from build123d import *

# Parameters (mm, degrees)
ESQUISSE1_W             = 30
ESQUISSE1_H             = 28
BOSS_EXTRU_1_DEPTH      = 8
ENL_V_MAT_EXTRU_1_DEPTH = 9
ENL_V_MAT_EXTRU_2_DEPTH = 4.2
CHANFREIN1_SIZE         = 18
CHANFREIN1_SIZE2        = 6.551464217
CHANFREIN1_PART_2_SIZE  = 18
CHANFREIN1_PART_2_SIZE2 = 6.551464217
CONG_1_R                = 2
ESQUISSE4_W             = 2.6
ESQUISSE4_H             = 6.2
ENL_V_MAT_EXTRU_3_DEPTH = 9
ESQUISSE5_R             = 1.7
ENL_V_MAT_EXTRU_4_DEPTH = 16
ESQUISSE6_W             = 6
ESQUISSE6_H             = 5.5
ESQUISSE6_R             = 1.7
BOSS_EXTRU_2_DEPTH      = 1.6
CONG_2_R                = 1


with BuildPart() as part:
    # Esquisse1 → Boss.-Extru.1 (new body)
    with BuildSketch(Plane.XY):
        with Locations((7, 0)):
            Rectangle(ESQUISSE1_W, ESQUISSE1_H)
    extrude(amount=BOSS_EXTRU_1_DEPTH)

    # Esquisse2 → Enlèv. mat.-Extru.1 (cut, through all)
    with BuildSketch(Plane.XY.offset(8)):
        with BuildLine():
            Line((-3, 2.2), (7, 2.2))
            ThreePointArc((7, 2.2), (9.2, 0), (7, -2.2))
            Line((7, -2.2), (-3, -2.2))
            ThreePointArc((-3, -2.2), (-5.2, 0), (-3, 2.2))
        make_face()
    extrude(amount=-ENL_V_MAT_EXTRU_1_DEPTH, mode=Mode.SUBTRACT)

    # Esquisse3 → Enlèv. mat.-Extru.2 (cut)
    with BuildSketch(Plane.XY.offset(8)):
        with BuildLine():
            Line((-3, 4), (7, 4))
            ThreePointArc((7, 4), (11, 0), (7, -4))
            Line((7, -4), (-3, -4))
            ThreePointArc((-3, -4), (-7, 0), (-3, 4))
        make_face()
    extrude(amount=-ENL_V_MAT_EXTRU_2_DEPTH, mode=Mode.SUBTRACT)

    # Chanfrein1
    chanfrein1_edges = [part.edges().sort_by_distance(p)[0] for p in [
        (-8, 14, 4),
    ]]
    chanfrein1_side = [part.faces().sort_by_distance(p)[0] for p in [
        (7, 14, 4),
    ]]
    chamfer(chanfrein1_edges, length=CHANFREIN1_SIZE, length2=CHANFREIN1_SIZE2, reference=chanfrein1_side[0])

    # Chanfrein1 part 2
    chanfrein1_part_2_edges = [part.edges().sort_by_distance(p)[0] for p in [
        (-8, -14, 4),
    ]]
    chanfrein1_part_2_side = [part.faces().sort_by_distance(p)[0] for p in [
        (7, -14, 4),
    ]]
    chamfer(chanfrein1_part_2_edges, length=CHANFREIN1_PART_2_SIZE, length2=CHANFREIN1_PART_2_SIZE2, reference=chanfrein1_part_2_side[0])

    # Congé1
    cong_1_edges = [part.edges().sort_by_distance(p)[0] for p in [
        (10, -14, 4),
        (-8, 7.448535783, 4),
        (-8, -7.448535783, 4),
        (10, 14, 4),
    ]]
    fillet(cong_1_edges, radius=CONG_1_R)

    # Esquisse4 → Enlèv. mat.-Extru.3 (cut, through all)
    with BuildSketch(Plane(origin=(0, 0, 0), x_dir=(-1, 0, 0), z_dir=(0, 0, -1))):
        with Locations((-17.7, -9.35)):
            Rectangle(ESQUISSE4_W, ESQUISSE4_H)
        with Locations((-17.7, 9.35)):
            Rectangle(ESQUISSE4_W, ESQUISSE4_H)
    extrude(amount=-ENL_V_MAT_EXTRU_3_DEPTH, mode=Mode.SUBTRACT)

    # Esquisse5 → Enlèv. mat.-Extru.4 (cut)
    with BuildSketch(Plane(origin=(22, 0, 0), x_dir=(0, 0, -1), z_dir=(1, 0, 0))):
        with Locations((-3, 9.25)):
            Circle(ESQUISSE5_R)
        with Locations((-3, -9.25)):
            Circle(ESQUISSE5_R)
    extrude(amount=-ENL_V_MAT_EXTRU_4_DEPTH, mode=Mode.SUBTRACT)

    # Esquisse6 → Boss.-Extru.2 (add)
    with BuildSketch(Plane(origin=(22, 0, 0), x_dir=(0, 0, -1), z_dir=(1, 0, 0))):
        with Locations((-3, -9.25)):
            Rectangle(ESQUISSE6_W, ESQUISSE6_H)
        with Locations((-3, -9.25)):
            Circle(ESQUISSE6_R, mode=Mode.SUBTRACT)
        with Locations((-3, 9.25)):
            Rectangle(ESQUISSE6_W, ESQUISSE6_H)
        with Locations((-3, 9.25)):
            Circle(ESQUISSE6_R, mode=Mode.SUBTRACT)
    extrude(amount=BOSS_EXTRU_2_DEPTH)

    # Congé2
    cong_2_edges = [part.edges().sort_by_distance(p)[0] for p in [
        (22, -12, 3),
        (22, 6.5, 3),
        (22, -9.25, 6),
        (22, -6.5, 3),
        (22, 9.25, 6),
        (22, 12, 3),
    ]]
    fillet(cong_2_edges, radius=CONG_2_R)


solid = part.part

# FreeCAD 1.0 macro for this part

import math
import FreeCAD as App
import Part
import Sketcher

V = App.Vector
Q = App.Units.Quantity


def edges_at(feature, points):
    """Names of the edges that pass closest to the given points."""
    edges = feature.Shape.Edges
    near = lambda p: min(range(len(edges)), key=lambda i: edges[i].distToShape(Part.Vertex(*p))[0])
    return sorted({f"Edge{near(p) + 1}" for p in points})


def add_polygon(sketch, points):
    """Adds a closed chain of lines whose ends are joined by coincident constraints."""
    first, n = sketch.GeometryCount, len(points)
    for a, b in zip(points, points[1:] + points[:1]):
        sketch.addGeometry(Part.LineSegment(App.Vector(*a, 0), App.Vector(*b, 0)), False)
    for i in range(n):
        sketch.addConstraint(Sketcher.Constraint("Coincident", first + i, 2, first + (i + 1) % n, 1))

doc = App.newDocument("Part")
body = doc.addObject("PartDesign::Body", "Body")

# Sketch on XY plane
sketch1 = body.newObject("Sketcher::SketchObject", "Sketch")
sketch1.AttachmentSupport = (doc.getObject("XY_Plane"), [""])
sketch1.MapMode = "FlatFace"
add_polygon(sketch1, [(-8, 14), (-8, -14), (22, -14), (22, 14)])  # lines 0-3
sketch1.addConstraint([
    Sketcher.Constraint("Vertical", 0),
    Sketcher.Constraint("Horizontal", 1),
    Sketcher.Constraint("Vertical", 2),
    Sketcher.Constraint("Horizontal", 3),
    Sketcher.Constraint("DistanceX", 1, 1, 1, 2, Q("30 mm")),
    Sketcher.Constraint("DistanceY", 0, 2, 0, 1, Q("28 mm")),
    Sketcher.Constraint("DistanceX", 0, 2, -1, 1, Q("8 mm")),
    Sketcher.Constraint("DistanceY", 0, 2, -1, 1, Q("14 mm")),
])
pad1 = body.newObject("PartDesign::Pad", "Pad")
pad1.Profile = sketch1
pad1.Length = 8

# Sketch on XY plane
sketch2 = body.newObject("Sketcher::SketchObject", "Sketch001")
sketch2.AttachmentSupport = (doc.getObject("XY_Plane"), [""])
sketch2.MapMode = "FlatFace"
sketch2.AttachmentOffset = App.Placement(V(0, 0, 8), App.Rotation())
sketch2.addGeometry([
    Part.LineSegment(V(7, 2.2, 0), V(-3, 2.2, 0)),
    Part.ArcOfCircle(Part.Circle(V(-3, 0, 0), V(0, 0, 1), 2.2), math.radians(90), math.radians(270)),
    Part.LineSegment(V(-3, -2.2, 0), V(7, -2.2, 0)),
    Part.ArcOfCircle(Part.Circle(V(7, 0, 0), V(0, 0, 1), 2.2), math.radians(-90), math.radians(90)),
], False)
sketch2.addConstraint([
    Sketcher.Constraint("Tangent", 0, 2, 1, 1),
    Sketcher.Constraint("Tangent", 1, 2, 2, 1),
    Sketcher.Constraint("Tangent", 2, 2, 3, 1),
    Sketcher.Constraint("Tangent", 3, 2, 0, 1),
    Sketcher.Constraint("Horizontal", 0),
    Sketcher.Constraint("Horizontal", 2),
    Sketcher.Constraint("PointOnObject", 1, 3, -1),
    Sketcher.Constraint("Radius", 1, Q("2.2 mm")),
    Sketcher.Constraint("DistanceX", 0, 2, 0, 1, Q("10 mm")),
    Sketcher.Constraint("DistanceX", 1, 3, -1, 1, Q("3 mm")),
])
pocket1 = body.newObject("PartDesign::Pocket", "Pocket")
pocket1.Profile = sketch2
pocket1.Type = "ThroughAll"

# Sketch on XY plane
sketch3 = body.newObject("Sketcher::SketchObject", "Sketch002")
sketch3.AttachmentSupport = (doc.getObject("XY_Plane"), [""])
sketch3.MapMode = "FlatFace"
sketch3.AttachmentOffset = App.Placement(V(0, 0, 8), App.Rotation())
sketch3.addGeometry([
    Part.LineSegment(V(7, 4, 0), V(-3, 4, 0)),
    Part.ArcOfCircle(Part.Circle(V(-3, 0, 0), V(0, 0, 1), 4), math.radians(90), math.radians(270)),
    Part.LineSegment(V(-3, -4, 0), V(7, -4, 0)),
    Part.ArcOfCircle(Part.Circle(V(7, 0, 0), V(0, 0, 1), 4), math.radians(-90), math.radians(90)),
], False)
sketch3.addConstraint([
    Sketcher.Constraint("Tangent", 0, 2, 1, 1),
    Sketcher.Constraint("Tangent", 1, 2, 2, 1),
    Sketcher.Constraint("Tangent", 2, 2, 3, 1),
    Sketcher.Constraint("Tangent", 3, 2, 0, 1),
    Sketcher.Constraint("Horizontal", 0),
    Sketcher.Constraint("Horizontal", 2),
    Sketcher.Constraint("PointOnObject", 1, 3, -1),
    Sketcher.Constraint("Radius", 1, Q("4 mm")),
    Sketcher.Constraint("DistanceX", 0, 2, 0, 1, Q("10 mm")),
    Sketcher.Constraint("DistanceX", 1, 3, -1, 1, Q("3 mm")),
])
pocket2 = body.newObject("PartDesign::Pocket", "Pocket001")
pocket2.Profile = sketch3
pocket2.Length = 4.2
doc.recompute()

chamfer = body.newObject("PartDesign::Chamfer", "Chamfer")
chamfer.Base = (pocket2, edges_at(pocket2, [(-8, 14, 4)]))
chamfer.ChamferType = "Two distances"
chamfer.Size = 18
chamfer.Size2 = 6.551464
chamfer.FlipDirection = True
doc.recompute()

chamfer2 = body.newObject("PartDesign::Chamfer", "Chamfer001")
chamfer2.Base = (chamfer, edges_at(chamfer, [(-8, -14, 4)]))
chamfer2.ChamferType = "Two distances"
chamfer2.Size = 18
chamfer2.Size2 = 6.551464
chamfer2.FlipDirection = True
doc.recompute()

fillet = body.newObject("PartDesign::Fillet", "Fillet")
fillet.Base = (chamfer2, edges_at(chamfer2, [
    (10, -14, 4),
    (-8, 7.449, 4),
    (-8, -7.449, 4),
    (10, 14, 4),
]))
fillet.Radius = 2

# Sketch on XY plane
sketch4 = body.newObject("Sketcher::SketchObject", "Sketch003")
sketch4.AttachmentSupport = (doc.getObject("XY_Plane"), [""])
sketch4.MapMode = "FlatFace"
add_polygon(sketch4, [(19, -6.2), (19, -12.4), (16.4, -12.4), (16.4, -6.2)])  # lines 0-3
add_polygon(sketch4, [(19, 12.4), (19, 6.2), (16.4, 6.2), (16.4, 12.4)])  # lines 4-7
sketch4.addConstraint([
    Sketcher.Constraint("Vertical", 0),
    Sketcher.Constraint("Horizontal", 1),
    Sketcher.Constraint("Vertical", 2),
    Sketcher.Constraint("Horizontal", 3),
    Sketcher.Constraint("Vertical", 4),
    Sketcher.Constraint("Horizontal", 5),
    Sketcher.Constraint("Vertical", 6),
    Sketcher.Constraint("Horizontal", 7),
    Sketcher.Constraint("Symmetric", 3, 2, 4, 2, -1),
    Sketcher.Constraint("Symmetric", 1, 2, 6, 2, -1),
    Sketcher.Constraint("DistanceX", 1, 2, 1, 1, Q("2.6 mm")),
    Sketcher.Constraint("DistanceY", 0, 2, 0, 1, Q("6.2 mm")),
    Sketcher.Constraint("DistanceX", -1, 1, 0, 2, Q("19 mm")),
    Sketcher.Constraint("DistanceY", 3, 2, 4, 2, Q("12.5 mm")),
])
pocket3 = body.newObject("PartDesign::Pocket", "Pocket002")
pocket3.Profile = sketch4
pocket3.Type = "ThroughAll"
pocket3.Reversed = True

# Sketch on YZ plane
sketch5 = body.newObject("Sketcher::SketchObject", "Sketch004")
sketch5.AttachmentSupport = (doc.getObject("YZ_Plane"), [""])
sketch5.MapMode = "FlatFace"
sketch5.AttachmentOffset = App.Placement(V(0, 0, 22), App.Rotation())
sketch5.addGeometry([
    Part.Circle(V(9.2, 3, 0), V(0, 0, 1), 1.7),
    Part.Circle(V(-9.2, 3, 0), V(0, 0, 1), 1.7),
], False)
sketch5.addConstraint([
    Sketcher.Constraint("Equal", 0, 1),
    Sketcher.Constraint("Symmetric", 0, 3, 1, 3, -2),
    Sketcher.Constraint("Diameter", 0, Q("3.4 mm")),
    Sketcher.Constraint("DistanceY", -1, 1, 0, 3, Q("3 mm")),
    Sketcher.Constraint("DistanceX", 1, 3, 0, 3, Q("18.5 mm")),
])
pocket4 = body.newObject("PartDesign::Pocket", "Pocket003")
pocket4.Profile = sketch5
pocket4.Length = 16

# Sketch on YZ plane
sketch6 = body.newObject("Sketcher::SketchObject", "Sketch005")
sketch6.AttachmentSupport = (doc.getObject("YZ_Plane"), [""])
sketch6.MapMode = "FlatFace"
sketch6.AttachmentOffset = App.Placement(V(0, 0, 22), App.Rotation())
add_polygon(sketch6, [(-6.5, 6), (-12, 6), (-12, 0), (-6.5, 0)])  # lines 0-3
sketch6.addGeometry(Part.Circle(V(-9.2, 3, 0), V(0, 0, 1), 1.7), False)  # 4
add_polygon(sketch6, [(12, 6), (6.5, 6), (6.5, 0), (12, 0)])  # lines 5-8
sketch6.addGeometry(Part.Circle(V(9.2, 3, 0), V(0, 0, 1), 1.7), False)  # 9
sketch6.addConstraint([
    Sketcher.Constraint("Horizontal", 0),
    Sketcher.Constraint("Vertical", 1),
    Sketcher.Constraint("Horizontal", 2),
    Sketcher.Constraint("Vertical", 3),
    Sketcher.Constraint("Horizontal", 5),
    Sketcher.Constraint("Vertical", 6),
    Sketcher.Constraint("Horizontal", 7),
    Sketcher.Constraint("Vertical", 8),
    Sketcher.Constraint("Equal", 4, 9),
    Sketcher.Constraint("Symmetric", 2, 2, 6, 2, -1, 1),
    Sketcher.Constraint("Symmetric", 4, 3, 9, 3, -2),
    Sketcher.Constraint("Symmetric", 1, 2, 7, 2, -2),
    Sketcher.Constraint("Horizontal", 3, 2, 5, 2),
    Sketcher.Constraint("Diameter", 4, Q("3.4 mm")),
    Sketcher.Constraint("DistanceY", 1, 2, 1, 1, Q("6 mm")),
    Sketcher.Constraint("DistanceX", 0, 2, 0, 1, Q("5.5 mm")),
    Sketcher.Constraint("DistanceY", -1, 1, 4, 3, Q("3 mm")),
    Sketcher.Constraint("DistanceX", 0, 2, -1, 1, Q("12 mm")),
    Sketcher.Constraint("DistanceX", 4, 3, 9, 3, Q("18.5 mm")),
])
pad2 = body.newObject("PartDesign::Pad", "Pad001")
pad2.Profile = sketch6
pad2.Length = 1.6
doc.recompute()

fillet2 = body.newObject("PartDesign::Fillet", "Fillet001")
fillet2.Base = (pad2, edges_at(pad2, [
    (22, -12, 3),
    (22, 6.5, 3),
    (22, -9.25, 6),
    (22, -6.5, 3),
    (22, 9.25, 6),
    (22, 12, 3),
]))
fillet2.Radius = 1

doc.recompute()
